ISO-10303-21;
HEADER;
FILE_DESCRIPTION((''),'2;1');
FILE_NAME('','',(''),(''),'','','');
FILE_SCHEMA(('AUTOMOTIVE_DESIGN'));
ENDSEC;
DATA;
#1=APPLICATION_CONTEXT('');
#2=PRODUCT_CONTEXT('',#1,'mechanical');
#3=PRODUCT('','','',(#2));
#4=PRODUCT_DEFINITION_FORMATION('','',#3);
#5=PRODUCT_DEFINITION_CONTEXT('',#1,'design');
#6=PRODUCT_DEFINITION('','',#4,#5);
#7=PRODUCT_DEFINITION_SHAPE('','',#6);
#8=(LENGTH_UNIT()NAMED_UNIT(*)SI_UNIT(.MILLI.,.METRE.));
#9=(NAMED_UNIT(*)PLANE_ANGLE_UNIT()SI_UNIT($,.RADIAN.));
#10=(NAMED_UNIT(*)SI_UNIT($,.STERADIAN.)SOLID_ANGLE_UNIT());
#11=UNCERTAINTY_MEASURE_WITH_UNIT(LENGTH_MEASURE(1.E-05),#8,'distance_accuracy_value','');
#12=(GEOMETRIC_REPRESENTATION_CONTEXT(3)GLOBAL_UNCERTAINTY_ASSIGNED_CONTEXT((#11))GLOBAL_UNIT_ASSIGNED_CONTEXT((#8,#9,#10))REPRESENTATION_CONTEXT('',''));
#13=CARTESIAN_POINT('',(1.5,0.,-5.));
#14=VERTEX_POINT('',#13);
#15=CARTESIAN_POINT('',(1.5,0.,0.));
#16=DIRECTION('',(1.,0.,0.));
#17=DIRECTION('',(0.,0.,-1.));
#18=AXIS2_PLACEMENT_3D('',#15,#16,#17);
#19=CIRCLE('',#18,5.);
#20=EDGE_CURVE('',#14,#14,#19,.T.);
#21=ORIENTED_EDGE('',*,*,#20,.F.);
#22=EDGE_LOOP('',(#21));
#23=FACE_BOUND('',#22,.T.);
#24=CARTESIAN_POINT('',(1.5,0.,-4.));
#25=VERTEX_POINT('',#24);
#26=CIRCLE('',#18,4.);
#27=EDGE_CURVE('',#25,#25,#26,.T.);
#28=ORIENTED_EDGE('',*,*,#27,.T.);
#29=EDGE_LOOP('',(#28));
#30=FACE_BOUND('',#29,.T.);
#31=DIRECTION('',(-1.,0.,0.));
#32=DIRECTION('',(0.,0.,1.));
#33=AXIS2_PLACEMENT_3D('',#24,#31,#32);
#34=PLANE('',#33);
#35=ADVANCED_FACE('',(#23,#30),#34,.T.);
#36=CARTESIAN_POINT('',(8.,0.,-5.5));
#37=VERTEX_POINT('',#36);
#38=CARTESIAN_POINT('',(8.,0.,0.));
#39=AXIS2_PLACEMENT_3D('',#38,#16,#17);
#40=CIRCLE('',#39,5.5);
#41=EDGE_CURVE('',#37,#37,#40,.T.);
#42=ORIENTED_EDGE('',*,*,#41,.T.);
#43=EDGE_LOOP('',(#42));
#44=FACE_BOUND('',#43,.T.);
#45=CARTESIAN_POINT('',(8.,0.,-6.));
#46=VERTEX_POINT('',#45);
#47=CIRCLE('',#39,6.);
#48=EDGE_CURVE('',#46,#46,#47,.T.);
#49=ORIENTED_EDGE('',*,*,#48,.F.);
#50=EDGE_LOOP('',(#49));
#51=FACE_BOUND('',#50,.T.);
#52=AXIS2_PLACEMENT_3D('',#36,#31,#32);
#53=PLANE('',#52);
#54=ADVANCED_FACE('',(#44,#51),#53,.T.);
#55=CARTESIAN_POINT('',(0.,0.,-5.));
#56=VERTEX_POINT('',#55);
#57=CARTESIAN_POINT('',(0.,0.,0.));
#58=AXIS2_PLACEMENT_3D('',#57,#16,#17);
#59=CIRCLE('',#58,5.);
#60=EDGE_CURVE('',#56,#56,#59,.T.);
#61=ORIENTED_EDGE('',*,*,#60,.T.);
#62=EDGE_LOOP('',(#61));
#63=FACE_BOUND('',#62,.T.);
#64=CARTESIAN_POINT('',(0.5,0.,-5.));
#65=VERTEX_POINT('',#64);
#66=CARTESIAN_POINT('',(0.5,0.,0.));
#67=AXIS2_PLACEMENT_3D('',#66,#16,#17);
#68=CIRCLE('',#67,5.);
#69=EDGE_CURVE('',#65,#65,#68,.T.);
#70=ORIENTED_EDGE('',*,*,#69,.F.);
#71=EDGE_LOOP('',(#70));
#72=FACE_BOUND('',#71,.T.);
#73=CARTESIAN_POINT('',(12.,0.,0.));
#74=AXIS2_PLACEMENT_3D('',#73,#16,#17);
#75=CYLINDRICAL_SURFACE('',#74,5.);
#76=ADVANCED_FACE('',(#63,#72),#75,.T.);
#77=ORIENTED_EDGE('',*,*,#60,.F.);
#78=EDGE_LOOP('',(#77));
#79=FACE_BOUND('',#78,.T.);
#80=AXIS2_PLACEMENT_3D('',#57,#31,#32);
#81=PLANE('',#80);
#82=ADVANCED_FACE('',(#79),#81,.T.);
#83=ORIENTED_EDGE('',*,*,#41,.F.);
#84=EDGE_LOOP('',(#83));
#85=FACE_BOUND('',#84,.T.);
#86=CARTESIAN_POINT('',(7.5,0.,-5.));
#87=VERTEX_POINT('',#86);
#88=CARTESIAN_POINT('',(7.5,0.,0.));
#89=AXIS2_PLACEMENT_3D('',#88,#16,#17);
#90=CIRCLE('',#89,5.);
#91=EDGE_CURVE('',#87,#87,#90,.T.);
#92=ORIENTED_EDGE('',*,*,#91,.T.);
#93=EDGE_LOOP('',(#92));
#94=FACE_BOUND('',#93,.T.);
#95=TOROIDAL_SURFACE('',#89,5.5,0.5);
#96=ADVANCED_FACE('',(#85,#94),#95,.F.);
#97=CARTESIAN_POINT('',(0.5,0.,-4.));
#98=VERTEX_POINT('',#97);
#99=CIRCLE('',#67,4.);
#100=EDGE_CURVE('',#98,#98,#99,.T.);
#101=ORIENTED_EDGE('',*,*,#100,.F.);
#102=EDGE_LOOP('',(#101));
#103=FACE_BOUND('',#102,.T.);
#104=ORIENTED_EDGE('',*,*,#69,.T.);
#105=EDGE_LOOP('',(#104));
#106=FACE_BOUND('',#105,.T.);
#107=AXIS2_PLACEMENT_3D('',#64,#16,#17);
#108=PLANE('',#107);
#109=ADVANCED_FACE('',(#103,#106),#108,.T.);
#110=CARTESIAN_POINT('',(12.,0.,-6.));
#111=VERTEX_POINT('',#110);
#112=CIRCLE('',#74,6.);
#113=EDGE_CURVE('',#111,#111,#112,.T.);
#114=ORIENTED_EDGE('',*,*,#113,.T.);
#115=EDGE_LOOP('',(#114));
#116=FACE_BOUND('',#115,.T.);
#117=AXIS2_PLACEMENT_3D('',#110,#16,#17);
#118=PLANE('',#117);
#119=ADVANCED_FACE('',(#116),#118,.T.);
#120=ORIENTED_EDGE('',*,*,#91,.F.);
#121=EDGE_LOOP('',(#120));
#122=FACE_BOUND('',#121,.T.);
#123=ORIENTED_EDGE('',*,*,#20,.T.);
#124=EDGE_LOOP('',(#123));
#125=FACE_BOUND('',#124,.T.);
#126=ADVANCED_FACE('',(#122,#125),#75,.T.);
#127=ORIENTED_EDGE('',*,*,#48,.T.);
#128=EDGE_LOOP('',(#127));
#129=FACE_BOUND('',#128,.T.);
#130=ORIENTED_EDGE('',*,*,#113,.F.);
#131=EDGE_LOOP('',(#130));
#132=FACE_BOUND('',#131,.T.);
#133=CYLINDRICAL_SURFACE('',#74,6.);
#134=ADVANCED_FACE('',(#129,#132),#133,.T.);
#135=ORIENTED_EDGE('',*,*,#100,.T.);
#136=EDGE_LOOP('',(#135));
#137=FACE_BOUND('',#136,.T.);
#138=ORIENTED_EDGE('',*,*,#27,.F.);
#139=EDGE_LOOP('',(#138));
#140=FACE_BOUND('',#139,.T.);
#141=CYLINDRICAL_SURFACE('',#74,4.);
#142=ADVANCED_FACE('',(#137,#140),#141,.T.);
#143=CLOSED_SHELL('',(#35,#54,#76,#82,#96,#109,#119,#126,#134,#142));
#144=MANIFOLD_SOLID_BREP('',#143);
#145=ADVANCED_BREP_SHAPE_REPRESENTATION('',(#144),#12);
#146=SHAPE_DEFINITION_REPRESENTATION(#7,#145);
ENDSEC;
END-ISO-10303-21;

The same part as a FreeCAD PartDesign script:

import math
import FreeCAD as App
import Part
import Sketcher
from FreeCAD import Vector
Q = App.Units.Quantity

doc = App.newDocument("Part")
params = doc.addObject("Spreadsheet::Sheet", "Params")
for row, (alias, value) in enumerate([
    ("sketch1_radius", "0.5 mm"),
    ("sketch1_width", "12 mm"),
    ("sketch1_width2", "4 mm"),
    ("sketch1_width3", "6 mm"),
    ("sketch1_width4", "1 mm"),
    ("revolution_angle", "360 deg"),
], start=1):
    params.set(f"A{row}", alias)
    params.set(f"B{row}", "=" + value)
    params.setAlias(f"B{row}", alias)

body = doc.addObject("PartDesign::Body", "Body")

# Sketch on XZ plane
sketch1 = body.newObject("Sketcher::SketchObject", "Sketch")
sketch1.AttachmentSupport = (doc.getObject("XZ_Plane"), [""])
sketch1.MapMode = "FlatFace"
sketch1.addGeometry([
    Part.LineSegment(Vector(0, -5, 0), Vector(0, 0, 0)),  # 0
    Part.LineSegment(Vector(0, 0, 0), Vector(12, 0, 0)),  # 1
    Part.LineSegment(Vector(12, 0, 0), Vector(12, -6, 0)),  # 2
    Part.LineSegment(Vector(12, -6, 0), Vector(8, -6, 0)),  # 3
    Part.LineSegment(Vector(8, -6, 0), Vector(8, -5.5, 0)),  # 4
    Part.ArcOfCircle(Part.Circle(Vector(7.5, -5.5, 0), Vector(0, 0, 1), 0.5), math.radians(0), math.radians(90)),  # 5
    Part.LineSegment(Vector(7.5, -5, 0), Vector(1.5, -5, 0)),  # 6
    Part.LineSegment(Vector(1.5, -5, 0), Vector(1.5, -4, 0)),  # 7
    Part.LineSegment(Vector(1.5, -4, 0), Vector(0.5, -4, 0)),  # 8
    Part.LineSegment(Vector(0.5, -4, 0), Vector(0.5, -5, 0)),  # 9
    Part.LineSegment(Vector(0.5, -5, 0), Vector(0, -5, 0)),  # 10
], False)
sketch1.addConstraint([
    Sketcher.Constraint("Coincident", 0, 2, 1, 1),
    Sketcher.Constraint("Coincident", 1, 2, 2, 1),
    Sketcher.Constraint("Coincident", 2, 2, 3, 1),
    Sketcher.Constraint("Coincident", 3, 2, 4, 1),
    Sketcher.Constraint("Tangent", 4, 2, 5, 1),
    Sketcher.Constraint("Tangent", 5, 2, 6, 1),
    Sketcher.Constraint("Coincident", 6, 2, 7, 1),
    Sketcher.Constraint("Coincident", 7, 2, 8, 1),
    Sketcher.Constraint("Coincident", 8, 2, 9, 1),
    Sketcher.Constraint("Coincident", 9, 2, 10, 1),
    Sketcher.Constraint("Coincident", 10, 2, 0, 1),
    Sketcher.Constraint("Vertical", 0),
    Sketcher.Constraint("Horizontal", 1),
    Sketcher.Constraint("Vertical", 2),
    Sketcher.Constraint("Horizontal", 3),
    Sketcher.Constraint("Vertical", 4),
    Sketcher.Constraint("Horizontal", 6),
    Sketcher.Constraint("Vertical", 7),
    Sketcher.Constraint("Horizontal", 8),
    Sketcher.Constraint("Vertical", 9),
    Sketcher.Constraint("Horizontal", 10),
    Sketcher.Constraint("Coincident", 0, 2, -1, 1),
    Sketcher.Constraint("Horizontal", 6, 2, 9, 2),
    Sketcher.Constraint("Equal", 6, 2),
    Sketcher.Constraint("Equal", 10, 4),
    Sketcher.Constraint("Equal", 8, 7),
    Sketcher.Constraint("Radius", 5, Q("0.5 mm")),
    Sketcher.Constraint("DistanceX", 1, 1, 1, 2, Q("12 mm")),
    Sketcher.Constraint("DistanceX", 3, 2, 3, 1, Q("4 mm")),
    Sketcher.Constraint("DistanceX", 6, 2, 6, 1, Q("6 mm")),
    Sketcher.Constraint("DistanceX", 8, 2, 8, 1, Q("1 mm")),
])
sketch1.setExpression("Constraints[26]", "Params.sketch1_radius")
sketch1.setExpression("Constraints[27]", "Params.sketch1_width")
sketch1.setExpression("Constraints[28]", "Params.sketch1_width2")
sketch1.setExpression("Constraints[29]", "Params.sketch1_width3")
sketch1.setExpression("Constraints[30]", "Params.sketch1_width4")
revolution = body.newObject("PartDesign::Revolution", "Revolution")
revolution.Profile = sketch1
revolution.ReferenceAxis = (sketch1, ["H_Axis"])
revolution.setExpression("Angle", "Params.revolution_angle")

doc.recompute()
